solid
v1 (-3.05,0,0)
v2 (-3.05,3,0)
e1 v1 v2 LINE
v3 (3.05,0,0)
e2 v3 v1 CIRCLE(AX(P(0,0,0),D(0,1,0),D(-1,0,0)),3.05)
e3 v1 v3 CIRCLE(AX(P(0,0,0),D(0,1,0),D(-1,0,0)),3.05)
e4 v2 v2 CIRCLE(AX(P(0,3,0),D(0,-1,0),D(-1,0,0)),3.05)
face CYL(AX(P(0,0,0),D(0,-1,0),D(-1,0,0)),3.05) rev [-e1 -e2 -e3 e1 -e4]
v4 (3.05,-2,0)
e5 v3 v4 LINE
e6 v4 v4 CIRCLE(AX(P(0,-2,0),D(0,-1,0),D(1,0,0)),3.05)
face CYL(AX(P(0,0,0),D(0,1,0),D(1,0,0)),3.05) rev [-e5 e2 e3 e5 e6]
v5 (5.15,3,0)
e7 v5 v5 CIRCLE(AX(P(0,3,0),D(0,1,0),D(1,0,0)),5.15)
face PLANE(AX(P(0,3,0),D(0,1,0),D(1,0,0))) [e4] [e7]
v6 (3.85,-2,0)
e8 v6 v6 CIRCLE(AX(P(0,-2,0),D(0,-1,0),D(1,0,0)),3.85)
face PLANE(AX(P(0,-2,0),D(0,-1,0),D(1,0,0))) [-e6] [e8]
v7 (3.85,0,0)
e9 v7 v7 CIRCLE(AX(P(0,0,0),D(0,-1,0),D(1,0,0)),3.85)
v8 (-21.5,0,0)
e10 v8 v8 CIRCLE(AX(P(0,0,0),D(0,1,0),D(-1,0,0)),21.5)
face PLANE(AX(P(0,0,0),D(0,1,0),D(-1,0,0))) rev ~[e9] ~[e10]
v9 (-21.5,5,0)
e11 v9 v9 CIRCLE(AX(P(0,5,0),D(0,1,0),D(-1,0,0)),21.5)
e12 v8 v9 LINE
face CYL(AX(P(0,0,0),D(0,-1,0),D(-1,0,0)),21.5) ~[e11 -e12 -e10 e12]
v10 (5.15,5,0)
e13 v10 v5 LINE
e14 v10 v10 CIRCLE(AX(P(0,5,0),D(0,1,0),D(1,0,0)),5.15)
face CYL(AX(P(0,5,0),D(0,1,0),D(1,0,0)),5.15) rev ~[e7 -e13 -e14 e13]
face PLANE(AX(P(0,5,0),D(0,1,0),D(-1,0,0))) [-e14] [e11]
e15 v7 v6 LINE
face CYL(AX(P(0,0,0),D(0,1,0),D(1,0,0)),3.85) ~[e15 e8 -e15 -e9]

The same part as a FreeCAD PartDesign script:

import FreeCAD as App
import Part
import Sketcher
from FreeCAD import Vector

doc = App.newDocument("Part")
params = doc.addObject("Spreadsheet::Sheet", "Params")
for row, (alias, value) in enumerate([
    ("sketch1_diameter", "43 mm"),
    ("sketch1_diameter2", "6.1 mm"),
    ("pad1_length", "5 mm"),
    ("sketch2_diameter", "10.3 mm"),
    ("pocket1_length", "2 mm"),
    ("sketch3_diameter", "7.7 mm"),
    ("sketch3_diameter2", "6.1 mm"),
    ("pad2_length", "2 mm"),
], start=1):
    params.set(f"A{row}", alias)
    params.set(f"B{row}", "=" + value)
    params.setAlias(f"B{row}", alias)

body = doc.addObject("PartDesign::Body", "Body")

# Sketch on XZ plane
sketch1 = body.newObject("Sketcher::SketchObject", "Sketch")
sketch1.AttachmentSupport = (doc.getObject("XZ_Plane"), [""])
sketch1.MapMode = "FlatFace"
sketch1.addGeometry([
    Part.Circle(Vector(0, 0, 0), Vector(0, 0, 1), 21.5),
    Part.Circle(Vector(0, 0, 0), Vector(0, 0, 1), 3.05),
], False)
sketch1.addConstraint([
    Sketcher.Constraint("Coincident", 0, 3, -1, 1),
    Sketcher.Constraint("Coincident", 1, 3, -1, 1),
    Sketcher.Constraint("Diameter", 0, 43.0),
    Sketcher.Constraint("Diameter", 1, 6.1),
])
sketch1.setExpression("Constraints[2]", "Params.sketch1_diameter")
sketch1.setExpression("Constraints[3]", "Params.sketch1_diameter2")
pad1 = body.newObject("PartDesign::Pad", "Pad")
pad1.Profile = sketch1
pad1.setExpression("Length", "Params.pad1_length")
pad1.Reversed = True

# Sketch on XZ plane
sketch2 = body.newObject("Sketcher::SketchObject", "Sketch001")
sketch2.AttachmentSupport = (doc.getObject("XZ_Plane"), [""])
sketch2.MapMode = "FlatFace"
sketch2.AttachmentOffset = App.Placement(Vector(0, 0, -5), App.Rotation())
sketch2.addGeometry(Part.Circle(Vector(0, 0, 0), Vector(0, 0, 1), 5.15), False)
sketch2.addConstraint([
    Sketcher.Constraint("Coincident", 0, 3, -1, 1),
    Sketcher.Constraint("Diameter", 0, 10.3),
])
sketch2.setExpression("Constraints[1]", "Params.sketch2_diameter")
pocket1 = body.newObject("PartDesign::Pocket", "Pocket")
pocket1.Profile = sketch2
pocket1.setExpression("Length", "Params.pocket1_length")
pocket1.Reversed = True

# Sketch on XZ plane
sketch3 = body.newObject("Sketcher::SketchObject", "Sketch002")
sketch3.AttachmentSupport = (doc.getObject("XZ_Plane"), [""])
sketch3.MapMode = "FlatFace"
sketch3.addGeometry([
    Part.Circle(Vector(0, 0, 0), Vector(0, 0, 1), 3.85),
    Part.Circle(Vector(0, 0, 0), Vector(0, 0, 1), 3.05),
], False)
sketch3.addConstraint([
    Sketcher.Constraint("Coincident", 0, 3, -1, 1),
    Sketcher.Constraint("Coincident", 1, 3, -1, 1),
    Sketcher.Constraint("Diameter", 0, 7.7),
    Sketcher.Constraint("Diameter", 1, 6.1),
])
sketch3.setExpression("Constraints[2]", "Params.sketch3_diameter")
sketch3.setExpression("Constraints[3]", "Params.sketch3_diameter2")
pad2 = body.newObject("PartDesign::Pad", "Pad001")
pad2.Profile = sketch3
pad2.setExpression("Length", "Params.pad2_length")

doc.recompute()
